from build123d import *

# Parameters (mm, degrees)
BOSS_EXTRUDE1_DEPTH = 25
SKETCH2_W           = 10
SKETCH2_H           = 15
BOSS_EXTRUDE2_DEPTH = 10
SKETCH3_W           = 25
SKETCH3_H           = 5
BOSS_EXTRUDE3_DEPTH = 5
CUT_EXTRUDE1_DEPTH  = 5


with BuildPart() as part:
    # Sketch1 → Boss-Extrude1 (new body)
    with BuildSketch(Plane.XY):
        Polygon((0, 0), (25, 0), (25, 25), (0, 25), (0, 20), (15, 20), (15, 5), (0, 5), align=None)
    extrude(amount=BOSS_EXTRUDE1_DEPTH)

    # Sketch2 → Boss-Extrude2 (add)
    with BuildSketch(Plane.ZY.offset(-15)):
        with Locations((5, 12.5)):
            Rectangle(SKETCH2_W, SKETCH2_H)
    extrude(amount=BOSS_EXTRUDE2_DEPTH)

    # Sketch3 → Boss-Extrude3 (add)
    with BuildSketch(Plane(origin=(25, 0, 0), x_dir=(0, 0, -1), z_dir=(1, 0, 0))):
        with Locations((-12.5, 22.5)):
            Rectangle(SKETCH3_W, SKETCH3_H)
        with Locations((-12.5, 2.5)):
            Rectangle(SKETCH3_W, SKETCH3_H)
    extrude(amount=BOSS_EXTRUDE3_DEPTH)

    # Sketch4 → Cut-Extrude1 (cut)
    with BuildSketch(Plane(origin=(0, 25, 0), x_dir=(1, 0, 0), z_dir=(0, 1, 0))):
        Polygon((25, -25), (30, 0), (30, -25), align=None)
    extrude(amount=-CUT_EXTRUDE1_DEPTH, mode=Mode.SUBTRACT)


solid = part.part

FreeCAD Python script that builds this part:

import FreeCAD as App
import Part
import Sketcher

V = App.Vector
Q = App.Units.Quantity

doc = App.newDocument("Part")
body = doc.addObject("PartDesign::Body", "Body")

# Sketch on XY plane
sketch1 = body.newObject("Sketcher::SketchObject", "Sketch")
sketch1.AttachmentSupport = (doc.getObject("XY_Plane"), [""])
sketch1.MapMode = "FlatFace"
sketch1.addGeometry([
    Part.LineSegment(V(0, 0, 0), V(25, 0, 0)),  # 0
    Part.LineSegment(V(25, 0, 0), V(25, 25, 0)),  # 1
    Part.LineSegment(V(25, 25, 0), V(0, 25, 0)),  # 2
    Part.LineSegment(V(0, 25, 0), V(0, 20, 0)),  # 3
    Part.LineSegment(V(0, 20, 0), V(15, 20, 0)),  # 4
    Part.LineSegment(V(15, 20, 0), V(15, 5, 0)),  # 5
    Part.LineSegment(V(15, 5, 0), V(0, 5, 0)),  # 6
    Part.LineSegment(V(0, 5, 0), V(0, 0, 0)),  # 7
], False)
sketch1.addConstraint([
    Sketcher.Constraint("Coincident", 0, 2, 1, 1),
    Sketcher.Constraint("Coincident", 1, 2, 2, 1),
    Sketcher.Constraint("Coincident", 2, 2, 3, 1),
    Sketcher.Constraint("Coincident", 3, 2, 4, 1),
    Sketcher.Constraint("Coincident", 4, 2, 5, 1),
    Sketcher.Constraint("Coincident", 5, 2, 6, 1),
    Sketcher.Constraint("Coincident", 6, 2, 7, 1),
    Sketcher.Constraint("Coincident", 7, 2, 0, 1),
    Sketcher.Constraint("Horizontal", 0),
    Sketcher.Constraint("Vertical", 1),
    Sketcher.Constraint("Horizontal", 2),
    Sketcher.Constraint("Vertical", 3),
    Sketcher.Constraint("Horizontal", 4),
    Sketcher.Constraint("Vertical", 5),
    Sketcher.Constraint("Horizontal", 6),
    Sketcher.Constraint("Vertical", 7),
    Sketcher.Constraint("Coincident", 7, 2, -1, 1),
    Sketcher.Constraint("PointOnObject", 2, 2, -2),
    Sketcher.Constraint("Equal", 2, 1),
    Sketcher.Constraint("Equal", 6, 5),
    Sketcher.Constraint("Equal", 3, 7),
    Sketcher.Constraint("DistanceX", 0, 1, 0, 2, Q("25 mm")),
    Sketcher.Constraint("DistanceX", 4, 1, 4, 2, Q("15 mm")),
])
pad1 = body.newObject("PartDesign::Pad", "Pad")
pad1.Profile = sketch1
pad1.Length = 25

# Sketch on YZ plane
sketch2 = body.newObject("Sketcher::SketchObject", "Sketch001")
sketch2.AttachmentSupport = (doc.getObject("YZ_Plane"), [""])
sketch2.MapMode = "FlatFace"
sketch2.AttachmentOffset = App.Placement(V(0, 0, 15), App.Rotation())
sketch2.addGeometry([
    Part.LineSegment(V(20, 0, 0), V(5, 0, 0)),
    Part.LineSegment(V(5, 0, 0), V(5, 10, 0)),
    Part.LineSegment(V(5, 10, 0), V(20, 10, 0)),
    Part.LineSegment(V(20, 10, 0), V(20, 0, 0)),
], False)
sketch2.addConstraint([
    Sketcher.Constraint("Coincident", 0, 2, 1, 1),
    Sketcher.Constraint("Coincident", 1, 2, 2, 1),
    Sketcher.Constraint("Coincident", 2, 2, 3, 1),
    Sketcher.Constraint("Coincident", 3, 2, 0, 1),
    Sketcher.Constraint("Horizontal", 0),
    Sketcher.Constraint("Vertical", 1),
    Sketcher.Constraint("Horizontal", 2),
    Sketcher.Constraint("Vertical", 3),
    Sketcher.Constraint("PointOnObject", 0, 2, -1),
    Sketcher.Constraint("DistanceX", 0, 2, 0, 1, Q("15 mm")),
    Sketcher.Constraint("DistanceY", 1, 1, 1, 2, Q("10 mm")),
    Sketcher.Constraint("DistanceX", -1, 1, 0, 2, Q("5 mm")),
])
pad2 = body.newObject("PartDesign::Pad", "Pad001")
pad2.Profile = sketch2
pad2.Length = 10
pad2.Reversed = True

# Sketch on YZ plane
sketch3 = body.newObject("Sketcher::SketchObject", "Sketch002")
sketch3.AttachmentSupport = (doc.getObject("YZ_Plane"), [""])
sketch3.MapMode = "FlatFace"
sketch3.AttachmentOffset = App.Placement(V(0, 0, 25), App.Rotation())
sketch3.addGeometry([
    Part.LineSegment(V(25, 25, 0), V(20, 25, 0)),  # 0
    Part.LineSegment(V(20, 25, 0), V(20, 0, 0)),  # 1
    Part.LineSegment(V(20, 0, 0), V(25, 0, 0)),  # 2
    Part.LineSegment(V(25, 0, 0), V(25, 25, 0)),  # 3
    Part.LineSegment(V(5, 25, 0), V(0, 25, 0)),  # 4
    Part.LineSegment(V(0, 25, 0), V(0, 0, 0)),  # 5
    Part.LineSegment(V(0, 0, 0), V(5, 0, 0)),  # 6
    Part.LineSegment(V(5, 0, 0), V(5, 25, 0)),  # 7
], False)
sketch3.addConstraint([
    Sketcher.Constraint("Coincident", 0, 2, 1, 1),
    Sketcher.Constraint("Coincident", 1, 2, 2, 1),
    Sketcher.Constraint("Coincident", 2, 2, 3, 1),
    Sketcher.Constraint("Coincident", 3, 2, 0, 1),
    Sketcher.Constraint("Coincident", 4, 2, 5, 1),
    Sketcher.Constraint("Coincident", 5, 2, 6, 1),
    Sketcher.Constraint("Coincident", 6, 2, 7, 1),
    Sketcher.Constraint("Coincident", 7, 2, 4, 1),
    Sketcher.Constraint("Horizontal", 0),
    Sketcher.Constraint("Vertical", 1),
    Sketcher.Constraint("Horizontal", 2),
    Sketcher.Constraint("Vertical", 3),
    Sketcher.Constraint("Horizontal", 4),
    Sketcher.Constraint("Vertical", 5),
    Sketcher.Constraint("Horizontal", 6),
    Sketcher.Constraint("Vertical", 7),
    Sketcher.Constraint("Coincident", 5, 2, -1, 1),
    Sketcher.Constraint("PointOnObject", 1, 2, -1),
    Sketcher.Constraint("Horizontal", 3, 2, 4, 2),
    Sketcher.Constraint("Equal", 2, 4),
    Sketcher.Constraint("DistanceX", 0, 2, 0, 1, Q("5 mm")),
    Sketcher.Constraint("DistanceY", 1, 2, 1, 1, Q("25 mm")),
    Sketcher.Constraint("DistanceX", -1, 1, 0, 2, Q("20 mm")),
])
pad3 = body.newObject("PartDesign::Pad", "Pad002")
pad3.Profile = sketch3
pad3.Length = 5

# Sketch on XZ plane
sketch4 = body.newObject("Sketcher::SketchObject", "Sketch003")
sketch4.AttachmentSupport = (doc.getObject("XZ_Plane"), [""])
sketch4.MapMode = "FlatFace"
sketch4.AttachmentOffset = App.Placement(V(0, 0, -25), App.Rotation())
sketch4.addGeometry([
    Part.LineSegment(V(30, 0, 0), V(25, 25, 0)),
    Part.LineSegment(V(25, 25, 0), V(30, 25, 0)),
    Part.LineSegment(V(30, 25, 0), V(30, 0, 0)),
], False)
sketch4.addConstraint([
    Sketcher.Constraint("Coincident", 0, 2, 1, 1),
    Sketcher.Constraint("Coincident", 1, 2, 2, 1),
    Sketcher.Constraint("Coincident", 2, 2, 0, 1),
    Sketcher.Constraint("Horizontal", 1),
    Sketcher.Constraint("Vertical", 2),
    Sketcher.Constraint("PointOnObject", 2, 2, -1),
    Sketcher.Constraint("DistanceX", 1, 1, 1, 2, Q("5 mm")),
    Sketcher.Constraint("DistanceY", 2, 2, 2, 1, Q("25 mm")),
    Sketcher.Constraint("DistanceX", -1, 1, 0, 2, Q("25 mm")),
])
pocket1 = body.newObject("PartDesign::Pocket", "Pocket")
pocket1.Profile = sketch4
pocket1.Length = 5
pocket1.Reversed = True

doc.recompute()
